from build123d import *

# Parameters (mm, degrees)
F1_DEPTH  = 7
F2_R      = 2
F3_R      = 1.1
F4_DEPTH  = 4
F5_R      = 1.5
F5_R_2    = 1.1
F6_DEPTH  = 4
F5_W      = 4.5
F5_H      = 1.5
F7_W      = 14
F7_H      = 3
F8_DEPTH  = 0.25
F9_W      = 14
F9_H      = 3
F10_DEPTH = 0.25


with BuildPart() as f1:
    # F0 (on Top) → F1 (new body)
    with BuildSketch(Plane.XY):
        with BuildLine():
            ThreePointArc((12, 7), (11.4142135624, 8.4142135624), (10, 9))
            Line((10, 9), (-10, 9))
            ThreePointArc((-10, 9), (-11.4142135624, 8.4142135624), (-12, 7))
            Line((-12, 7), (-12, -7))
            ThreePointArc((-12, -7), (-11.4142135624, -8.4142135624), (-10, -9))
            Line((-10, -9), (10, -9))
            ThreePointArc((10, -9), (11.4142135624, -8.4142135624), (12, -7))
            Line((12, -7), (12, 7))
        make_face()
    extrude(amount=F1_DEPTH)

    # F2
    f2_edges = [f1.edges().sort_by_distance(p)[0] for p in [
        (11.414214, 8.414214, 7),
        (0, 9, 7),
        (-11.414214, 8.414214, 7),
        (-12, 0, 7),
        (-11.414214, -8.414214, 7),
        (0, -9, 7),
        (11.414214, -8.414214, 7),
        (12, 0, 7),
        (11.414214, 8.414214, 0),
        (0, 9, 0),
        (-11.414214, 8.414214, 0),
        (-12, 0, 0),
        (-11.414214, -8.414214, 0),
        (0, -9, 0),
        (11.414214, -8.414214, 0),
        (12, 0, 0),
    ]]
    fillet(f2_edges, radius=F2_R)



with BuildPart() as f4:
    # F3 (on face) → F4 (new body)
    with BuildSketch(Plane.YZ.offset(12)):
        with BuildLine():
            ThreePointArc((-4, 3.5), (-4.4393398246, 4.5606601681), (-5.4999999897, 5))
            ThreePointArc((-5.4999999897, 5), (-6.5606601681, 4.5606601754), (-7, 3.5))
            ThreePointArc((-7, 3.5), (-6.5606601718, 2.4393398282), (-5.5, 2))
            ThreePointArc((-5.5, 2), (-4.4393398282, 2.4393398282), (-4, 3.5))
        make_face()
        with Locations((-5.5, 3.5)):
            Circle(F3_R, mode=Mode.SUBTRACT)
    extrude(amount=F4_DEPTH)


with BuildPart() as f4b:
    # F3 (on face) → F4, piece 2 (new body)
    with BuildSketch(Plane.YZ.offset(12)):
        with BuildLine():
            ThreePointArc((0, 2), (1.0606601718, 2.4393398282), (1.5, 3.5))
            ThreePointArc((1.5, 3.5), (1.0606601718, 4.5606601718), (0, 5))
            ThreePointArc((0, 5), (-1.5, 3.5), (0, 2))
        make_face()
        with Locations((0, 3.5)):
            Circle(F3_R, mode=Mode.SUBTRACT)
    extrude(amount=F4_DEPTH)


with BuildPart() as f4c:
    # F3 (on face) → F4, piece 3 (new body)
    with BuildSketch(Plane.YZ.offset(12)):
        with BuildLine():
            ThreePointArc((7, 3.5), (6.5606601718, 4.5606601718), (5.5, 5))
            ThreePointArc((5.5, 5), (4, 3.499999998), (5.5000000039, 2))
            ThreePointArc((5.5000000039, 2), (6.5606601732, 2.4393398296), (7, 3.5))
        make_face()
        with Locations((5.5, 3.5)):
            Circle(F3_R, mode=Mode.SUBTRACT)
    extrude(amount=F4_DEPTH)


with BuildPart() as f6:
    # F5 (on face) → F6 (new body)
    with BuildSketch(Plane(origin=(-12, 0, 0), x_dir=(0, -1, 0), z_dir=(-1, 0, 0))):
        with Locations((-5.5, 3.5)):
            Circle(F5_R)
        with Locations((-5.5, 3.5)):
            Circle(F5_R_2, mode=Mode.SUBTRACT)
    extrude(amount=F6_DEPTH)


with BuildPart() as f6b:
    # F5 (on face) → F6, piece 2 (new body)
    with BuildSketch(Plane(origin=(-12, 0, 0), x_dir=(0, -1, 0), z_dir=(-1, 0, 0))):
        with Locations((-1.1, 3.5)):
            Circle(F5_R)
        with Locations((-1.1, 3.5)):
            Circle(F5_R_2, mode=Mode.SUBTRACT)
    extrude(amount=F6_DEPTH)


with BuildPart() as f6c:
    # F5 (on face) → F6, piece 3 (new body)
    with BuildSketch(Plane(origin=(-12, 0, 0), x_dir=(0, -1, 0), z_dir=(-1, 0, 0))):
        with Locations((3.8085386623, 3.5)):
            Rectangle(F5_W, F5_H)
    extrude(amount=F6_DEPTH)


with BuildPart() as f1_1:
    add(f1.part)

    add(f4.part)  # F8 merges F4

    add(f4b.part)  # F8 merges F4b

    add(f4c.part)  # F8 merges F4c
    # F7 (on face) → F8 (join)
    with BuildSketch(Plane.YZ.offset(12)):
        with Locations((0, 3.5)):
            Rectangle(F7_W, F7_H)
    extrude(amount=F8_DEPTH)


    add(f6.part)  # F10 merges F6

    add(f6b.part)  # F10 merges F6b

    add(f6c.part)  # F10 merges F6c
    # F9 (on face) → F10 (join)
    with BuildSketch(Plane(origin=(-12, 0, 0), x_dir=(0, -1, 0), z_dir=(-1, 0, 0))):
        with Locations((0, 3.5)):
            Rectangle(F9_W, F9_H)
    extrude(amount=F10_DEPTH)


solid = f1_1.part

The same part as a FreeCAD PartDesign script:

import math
import FreeCAD as App
import Part
import Sketcher
from FreeCAD import Vector


def edges_at(feature, points):
    """Names of the edges that pass closest to the given points."""
    edges = feature.Shape.Edges
    near = lambda p: min(range(len(edges)), key=lambda i: edges[i].distToShape(Part.Vertex(*p))[0])
    return sorted({f"Edge{near(p) + 1}" for p in points})

doc = App.newDocument("Part")
body = doc.addObject("PartDesign::Body", "Body")

sketch1 = body.newObject("Sketcher::SketchObject", "Sketch")
sketch1.AttachmentSupport = (doc.getObject("XY_Plane"), [""])
sketch1.MapMode = "FlatFace"
sketch1.addGeometry(Part.ArcOfCircle(Part.Circle(Vector(10, 7, 0), Vector(0, 0, 1), 2), math.radians(0), math.radians(90)), False)
sketch1.addGeometry(Part.LineSegment(Vector(10, 9, 0), Vector(-10, 9, 0)), False)
sketch1.addGeometry(Part.ArcOfCircle(Part.Circle(Vector(-10, 7, 0), Vector(0, 0, 1), 2), math.radians(90), math.radians(180)), False)
sketch1.addGeometry(Part.LineSegment(Vector(-12, 7, 0), Vector(-12, -7, 0)), False)
sketch1.addGeometry(Part.ArcOfCircle(Part.Circle(Vector(-10, -7, 0), Vector(0, 0, 1), 2), math.radians(180), math.radians(270)), False)
sketch1.addGeometry(Part.LineSegment(Vector(-10, -9, 0), Vector(10, -9, 0)), False)
sketch1.addGeometry(Part.ArcOfCircle(Part.Circle(Vector(10, -7, 0), Vector(0, 0, 1), 2), math.radians(-90), math.radians(0)), False)
sketch1.addGeometry(Part.LineSegment(Vector(12, -7, 0), Vector(12, 7, 0)), False)
sketch1.addConstraint(Sketcher.Constraint("Tangent", 0, 2, 1, 1))
sketch1.addConstraint(Sketcher.Constraint("Tangent", 1, 2, 2, 1))
sketch1.addConstraint(Sketcher.Constraint("Tangent", 2, 2, 3, 1))
sketch1.addConstraint(Sketcher.Constraint("Tangent", 3, 2, 4, 1))
sketch1.addConstraint(Sketcher.Constraint("Tangent", 4, 2, 5, 1))
sketch1.addConstraint(Sketcher.Constraint("Tangent", 5, 2, 6, 1))
sketch1.addConstraint(Sketcher.Constraint("Tangent", 6, 2, 7, 1))
sketch1.addConstraint(Sketcher.Constraint("Tangent", 7, 2, 0, 1))
sketch1.addConstraint(Sketcher.Constraint("Horizontal", 1))
sketch1.addConstraint(Sketcher.Constraint("Vertical", 3))
sketch1.addConstraint(Sketcher.Constraint("Horizontal", 5))
sketch1.addConstraint(Sketcher.Constraint("Vertical", 7))
sketch1.addConstraint(Sketcher.Constraint("Equal", 0, 2))
sketch1.addConstraint(Sketcher.Constraint("Equal", 2, 4))
sketch1.addConstraint(Sketcher.Constraint("Equal", 4, 6))
sketch1.addConstraint(Sketcher.Constraint("Symmetric", 0, 3, 4, 3, -1, 1))
sketch1.addConstraint(Sketcher.Constraint("Radius", 0, 2.0))
sketch1.addConstraint(Sketcher.Constraint("DistanceX", 1, 2, 1, 1, 20.0))
sketch1.addConstraint(Sketcher.Constraint("DistanceY", 3, 2, 3, 1, 14.0))
pad1 = body.newObject("PartDesign::Pad", "Pad")
pad1.Profile = sketch1
pad1.Length = 7
doc.recompute()

fillet = body.newObject("PartDesign::Fillet", "Fillet")
fillet.Base = (pad1, edges_at(pad1, [
    (11.414, 8.414, 7),
    (0, 9, 7),
    (-11.414, 8.414, 7),
    (-12, 0, 7),
    (-11.414, -8.414, 7),
    (0, -9, 7),
    (11.414, -8.414, 7),
    (12, 0, 7),
    (11.414, 8.414, 0),
    (0, 9, 0),
    (-11.414, 8.414, 0),
    (-12, 0, 0),
    (-11.414, -8.414, 0),
    (0, -9, 0),
    (11.414, -8.414, 0),
    (12, 0, 0),
]))
fillet.Radius = 2
body2 = doc.addObject("PartDesign::Body", "Body001")

sketch2 = body2.newObject("Sketcher::SketchObject", "Sketch001")
sketch2.AttachmentSupport = (doc.getObject("YZ_Plane001"), [""])
sketch2.MapMode = "FlatFace"
sketch2.AttachmentOffset = App.Placement(Vector(0, 0, 12), App.Rotation())
sketch2.addGeometry(Part.ArcOfCircle(Part.Circle(Vector(-5.5, 3.5, 0), Vector(0, 0, 1), 1.5), math.radians(0), math.radians(90)), False)
sketch2.addGeometry(Part.ArcOfCircle(Part.Circle(Vector(-5.5, 3.5, 0), Vector(0, 0, 1), 1.5), math.radians(90), math.radians(180)), False)
sketch2.addGeometry(Part.ArcOfCircle(Part.Circle(Vector(-5.5, 3.5, 0), Vector(0, 0, 1), 1.5), math.radians(180), math.radians(270)), False)
sketch2.addGeometry(Part.ArcOfCircle(Part.Circle(Vector(-5.5, 3.5, 0), Vector(0, 0, 1), 1.5), math.radians(-90), math.radians(0)), False)
sketch2.addGeometry(Part.Circle(Vector(-5.5, 3.5, 0), Vector(0, 0, 1), 1.1), False)
sketch2.addConstraint(Sketcher.Constraint("Tangent", 0, 2, 1, 1))
sketch2.addConstraint(Sketcher.Constraint("Tangent", 1, 2, 2, 1))
sketch2.addConstraint(Sketcher.Constraint("Tangent", 2, 2, 3, 1))
sketch2.addConstraint(Sketcher.Constraint("Tangent", 3, 2, 0, 1))
sketch2.addConstraint(Sketcher.Constraint("Coincident", 4, 3, 0, 3))
sketch2.addConstraint(Sketcher.Constraint("Equal", 0, 1))
sketch2.addConstraint(Sketcher.Constraint("Horizontal", 4, 3, 1, 2))
sketch2.addConstraint(Sketcher.Constraint("Horizontal", 1, 2, 3, 2))
sketch2.addConstraint(Sketcher.Constraint("Vertical", 4, 3, 0, 2))
sketch2.addConstraint(Sketcher.Constraint("Vertical", 0, 2, 2, 2))
sketch2.addConstraint(Sketcher.Constraint("Diameter", 4, 2.2))
sketch2.addConstraint(Sketcher.Constraint("Radius", 0, 1.5))
sketch2.addConstraint(Sketcher.Constraint("DistanceY", -1, 1, 0, 2, 5.0))
sketch2.addConstraint(Sketcher.Constraint("DistanceX", 1, 2, -1, 1, 7.0))
pad2 = body2.newObject("PartDesign::Pad", "Pad001")
pad2.Profile = sketch2
pad2.Length = 4
body3 = doc.addObject("PartDesign::Body", "Body002")

sketch3 = body3.newObject("Sketcher::SketchObject", "Sketch002")
sketch3.AttachmentSupport = (doc.getObject("YZ_Plane002"), [""])
sketch3.MapMode = "FlatFace"
sketch3.AttachmentOffset = App.Placement(Vector(0, 0, 12), App.Rotation())
sketch3.addGeometry(Part.ArcOfCircle(Part.Circle(Vector(0, 3.5, 0), Vector(0, 0, 1), 1.5), math.radians(-90), math.radians(0)), False)
sketch3.addGeometry(Part.ArcOfCircle(Part.Circle(Vector(0, 3.5, 0), Vector(0, 0, 1), 1.5), math.radians(0), math.radians(90)), False)
sketch3.addGeometry(Part.ArcOfCircle(Part.Circle(Vector(0, 3.5, 0), Vector(0, 0, 1), 1.5), math.radians(90), math.radians(270)), False)
sketch3.addGeometry(Part.Circle(Vector(0, 3.5, 0), Vector(0, 0, 1), 1.1), False)
sketch3.addConstraint(Sketcher.Constraint("Tangent", 0, 2, 1, 1))
sketch3.addConstraint(Sketcher.Constraint("Tangent", 1, 2, 2, 1))
sketch3.addConstraint(Sketcher.Constraint("Tangent", 2, 2, 0, 1))
sketch3.addConstraint(Sketcher.Constraint("Coincident", 3, 3, 0, 3))
sketch3.addConstraint(Sketcher.Constraint("PointOnObject", 0, 3, -2))
sketch3.addConstraint(Sketcher.Constraint("PointOnObject", 1, 2, -2))
sketch3.addConstraint(Sketcher.Constraint("PointOnObject", 2, 2, -2))
sketch3.addConstraint(Sketcher.Constraint("Horizontal", 3, 3, 0, 2))
sketch3.addConstraint(Sketcher.Constraint("Diameter", 3, 2.2))
sketch3.addConstraint(Sketcher.Constraint("Radius", 0, 1.5))
sketch3.addConstraint(Sketcher.Constraint("DistanceY", -1, 1, 1, 2, 5.0))
pad3 = body3.newObject("PartDesign::Pad", "Pad002")
pad3.Profile = sketch3
pad3.Length = 4
body4 = doc.addObject("PartDesign::Body", "Body003")

sketch4 = body4.newObject("Sketcher::SketchObject", "Sketch003")
sketch4.AttachmentSupport = (doc.getObject("YZ_Plane003"), [""])
sketch4.MapMode = "FlatFace"
sketch4.AttachmentOffset = App.Placement(Vector(0, 0, 12), App.Rotation())
sketch4.addGeometry(Part.ArcOfCircle(Part.Circle(Vector(5.5, 3.5, 0), Vector(0, 0, 1), 1.5), math.radians(0), math.radians(90)), False)
sketch4.addGeometry(Part.ArcOfCircle(Part.Circle(Vector(5.5, 3.5, 0), Vector(0, 0, 1), 1.5), math.radians(90), math.radians(270)), False)
sketch4.addGeometry(Part.ArcOfCircle(Part.Circle(Vector(5.5, 3.5, 0), Vector(0, 0, 1), 1.5), math.radians(-90), math.radians(0)), False)
sketch4.addGeometry(Part.Circle(Vector(5.5, 3.5, 0), Vector(0, 0, 1), 1.1), False)
sketch4.addConstraint(Sketcher.Constraint("Tangent", 0, 2, 1, 1))
sketch4.addConstraint(Sketcher.Constraint("Tangent", 1, 2, 2, 1))
sketch4.addConstraint(Sketcher.Constraint("Tangent", 2, 2, 0, 1))
sketch4.addConstraint(Sketcher.Constraint("Coincident", 3, 3, 0, 3))
sketch4.addConstraint(Sketcher.Constraint("Horizontal", 3, 3, 2, 2))
sketch4.addConstraint(Sketcher.Constraint("Vertical", 3, 3, 0, 2))
sketch4.addConstraint(Sketcher.Constraint("Vertical", 0, 2, 1, 2))
sketch4.addConstraint(Sketcher.Constraint("Diameter", 3, 2.2))
sketch4.addConstraint(Sketcher.Constraint("Radius", 0, 1.5))
sketch4.addConstraint(Sketcher.Constraint("DistanceY", -1, 1, 0, 2, 5.0))
sketch4.addConstraint(Sketcher.Constraint("DistanceX", -1, 1, 2, 2, 7.0))
pad4 = body4.newObject("PartDesign::Pad", "Pad003")
pad4.Profile = sketch4
pad4.Length = 4
body5 = doc.addObject("PartDesign::Body", "Body004")

sketch5 = body5.newObject("Sketcher::SketchObject", "Sketch004")
sketch5.AttachmentSupport = (doc.getObject("YZ_Plane004"), [""])
sketch5.MapMode = "FlatFace"
sketch5.AttachmentOffset = App.Placement(Vector(0, 0, -12), App.Rotation())
sketch5.addGeometry(Part.Circle(Vector(5.5, 3.5, 0), Vector(0, 0, 1), 1.5), False)
sketch5.addGeometry(Part.Circle(Vector(5.5, 3.5, 0), Vector(0, 0, 1), 1.1), False)
sketch5.addConstraint(Sketcher.Constraint("Coincident", 1, 3, 0, 3))
sketch5.addConstraint(Sketcher.Constraint("Diameter", 0, 3.0))
sketch5.addConstraint(Sketcher.Constraint("Diameter", 1, 2.2))
sketch5.addConstraint(Sketcher.Constraint("DistanceX", -1, 1, 0, 3, 5.5))
sketch5.addConstraint(Sketcher.Constraint("DistanceY", -1, 1, 0, 3, 3.5))
pad5 = body5.newObject("PartDesign::Pad", "Pad004")
pad5.Profile = sketch5
pad5.Length = 4
pad5.Reversed = True
body6 = doc.addObject("PartDesign::Body", "Body005")

sketch6 = body6.newObject("Sketcher::SketchObject", "Sketch005")
sketch6.AttachmentSupport = (doc.getObject("YZ_Plane005"), [""])
sketch6.MapMode = "FlatFace"
sketch6.AttachmentOffset = App.Placement(Vector(0, 0, -12), App.Rotation())
sketch6.addGeometry(Part.Circle(Vector(1.1, 3.5, 0), Vector(0, 0, 1), 1.5), False)
sketch6.addGeometry(Part.Circle(Vector(1.1, 3.5, 0), Vector(0, 0, 1), 1.1), False)
sketch6.addConstraint(Sketcher.Constraint("Coincident", 1, 3, 0, 3))
sketch6.addConstraint(Sketcher.Constraint("Diameter", 0, 3.0))
sketch6.addConstraint(Sketcher.Constraint("Diameter", 1, 2.2))
sketch6.addConstraint(Sketcher.Constraint("DistanceX", -1, 1, 0, 3, 1.1))
sketch6.addConstraint(Sketcher.Constraint("DistanceY", -1, 1, 0, 3, 3.5))
pad6 = body6.newObject("PartDesign::Pad", "Pad005")
pad6.Profile = sketch6
pad6.Length = 4
pad6.Reversed = True
body7 = doc.addObject("PartDesign::Body", "Body006")

sketch7 = body7.newObject("Sketcher::SketchObject", "Sketch006")
sketch7.AttachmentSupport = (doc.getObject("YZ_Plane006"), [""])
sketch7.MapMode = "FlatFace"
sketch7.AttachmentOffset = App.Placement(Vector(0, 0, -12), App.Rotation())
sketch7.addGeometry(Part.LineSegment(Vector(-1.558539, 4.25, 0), Vector(-1.558539, 2.75, 0)), False)
sketch7.addGeometry(Part.LineSegment(Vector(-1.558539, 2.75, 0), Vector(-6.058539, 2.75, 0)), False)
sketch7.addGeometry(Part.LineSegment(Vector(-6.058539, 2.75, 0), Vector(-6.058539, 4.25, 0)), False)
sketch7.addGeometry(Part.LineSegment(Vector(-6.058539, 4.25, 0), Vector(-1.558539, 4.25, 0)), False)
sketch7.addConstraint(Sketcher.Constraint("Coincident", 0, 2, 1, 1))
sketch7.addConstraint(Sketcher.Constraint("Coincident", 1, 2, 2, 1))
sketch7.addConstraint(Sketcher.Constraint("Coincident", 2, 2, 3, 1))
sketch7.addConstraint(Sketcher.Constraint("Coincident", 3, 2, 0, 1))
sketch7.addConstraint(Sketcher.Constraint("Vertical", 0))
sketch7.addConstraint(Sketcher.Constraint("Horizontal", 1))
sketch7.addConstraint(Sketcher.Constraint("Vertical", 2))
sketch7.addConstraint(Sketcher.Constraint("Horizontal", 3))
sketch7.addConstraint(Sketcher.Constraint("DistanceX", 1, 2, 1, 1, 4.5))
sketch7.addConstraint(Sketcher.Constraint("DistanceY", 0, 2, 0, 1, 1.5))
sketch7.addConstraint(Sketcher.Constraint("DistanceY", -1, 1, 0, 2, 2.75))
sketch7.addConstraint(Sketcher.Constraint("DistanceX", 0, 2, -1, 1, 1.558539))
pad7 = body7.newObject("PartDesign::Pad", "Pad006")
pad7.Profile = sketch7
pad7.Length = 4
pad7.Reversed = True
doc.recompute()

boolean = body.newObject("PartDesign::Boolean", "Boolean")
boolean.Type = "Fuse"
boolean.addObjects([body2])
doc.recompute()

boolean2 = body.newObject("PartDesign::Boolean", "Boolean001")
boolean2.Type = "Fuse"
boolean2.addObjects([body3])
doc.recompute()

boolean3 = body.newObject("PartDesign::Boolean", "Boolean002")
boolean3.Type = "Fuse"
boolean3.addObjects([body4])

sketch8 = body.newObject("Sketcher::SketchObject", "Sketch007")
sketch8.AttachmentSupport = (doc.getObject("YZ_Plane"), [""])
sketch8.MapMode = "FlatFace"
sketch8.AttachmentOffset = App.Placement(Vector(0, 0, 12), App.Rotation())
sketch8.addGeometry(Part.LineSegment(Vector(-7, 5, 0), Vector(-7, 2, 0)), False)
sketch8.addGeometry(Part.LineSegment(Vector(-7, 2, 0), Vector(7, 2, 0)), False)
sketch8.addGeometry(Part.LineSegment(Vector(7, 2, 0), Vector(7, 5, 0)), False)
sketch8.addGeometry(Part.LineSegment(Vector(7, 5, 0), Vector(-7, 5, 0)), False)
sketch8.addConstraint(Sketcher.Constraint("Coincident", 0, 2, 1, 1))
sketch8.addConstraint(Sketcher.Constraint("Coincident", 1, 2, 2, 1))
sketch8.addConstraint(Sketcher.Constraint("Coincident", 2, 2, 3, 1))
sketch8.addConstraint(Sketcher.Constraint("Coincident", 3, 2, 0, 1))
sketch8.addConstraint(Sketcher.Constraint("Vertical", 0))
sketch8.addConstraint(Sketcher.Constraint("Horizontal", 1))
sketch8.addConstraint(Sketcher.Constraint("Vertical", 2))
sketch8.addConstraint(Sketcher.Constraint("Horizontal", 3))
sketch8.addConstraint(Sketcher.Constraint("DistanceX", 1, 1, 1, 2, 14.0))
sketch8.addConstraint(Sketcher.Constraint("DistanceY", 0, 2, 0, 1, 3.0))
sketch8.addConstraint(Sketcher.Constraint("DistanceX", 0, 2, -1, 1, 7.0))
sketch8.addConstraint(Sketcher.Constraint("DistanceY", -1, 1, 0, 2, 2.0))
pad8 = body.newObject("PartDesign::Pad", "Pad007")
pad8.Profile = sketch8
pad8.Length = 0.25
doc.recompute()

boolean4 = body.newObject("PartDesign::Boolean", "Boolean003")
boolean4.Type = "Fuse"
boolean4.addObjects([body5])
doc.recompute()

boolean5 = body.newObject("PartDesign::Boolean", "Boolean004")
boolean5.Type = "Fuse"
boolean5.addObjects([body6])
doc.recompute()

boolean6 = body.newObject("PartDesign::Boolean", "Boolean005")
boolean6.Type = "Fuse"
boolean6.addObjects([body7])

sketch9 = body.newObject("Sketcher::SketchObject", "Sketch008")
sketch9.AttachmentSupport = (doc.getObject("YZ_Plane"), [""])
sketch9.MapMode = "FlatFace"
sketch9.AttachmentOffset = App.Placement(Vector(0, 0, -12), App.Rotation())
sketch9.addGeometry(Part.LineSegment(Vector(7, 5, 0), Vector(7, 2, 0)), False)
sketch9.addGeometry(Part.LineSegment(Vector(7, 2, 0), Vector(-7, 2, 0)), False)
sketch9.addGeometry(Part.LineSegment(Vector(-7, 2, 0), Vector(-7, 5, 0)), False)
sketch9.addGeometry(Part.LineSegment(Vector(-7, 5, 0), Vector(7, 5, 0)), False)
sketch9.addConstraint(Sketcher.Constraint("Coincident", 0, 2, 1, 1))
sketch9.addConstraint(Sketcher.Constraint("Coincident", 1, 2, 2, 1))
sketch9.addConstraint(Sketcher.Constraint("Coincident", 2, 2, 3, 1))
sketch9.addConstraint(Sketcher.Constraint("Coincident", 3, 2, 0, 1))
sketch9.addConstraint(Sketcher.Constraint("Vertical", 0))
sketch9.addConstraint(Sketcher.Constraint("Horizontal", 1))
sketch9.addConstraint(Sketcher.Constraint("Vertical", 2))
sketch9.addConstraint(Sketcher.Constraint("Horizontal", 3))
sketch9.addConstraint(Sketcher.Constraint("DistanceX", 1, 2, 1, 1, 14.0))
sketch9.addConstraint(Sketcher.Constraint("DistanceY", 0, 2, 0, 1, 3.0))
sketch9.addConstraint(Sketcher.Constraint("DistanceX", -1, 1, 0, 2, 7.0))
sketch9.addConstraint(Sketcher.Constraint("DistanceY", -1, 1, 0, 2, 2.0))
pad9 = body.newObject("PartDesign::Pad", "Pad008")
pad9.Profile = sketch9
pad9.Length = 0.25
pad9.Reversed = True

doc.recompute()
